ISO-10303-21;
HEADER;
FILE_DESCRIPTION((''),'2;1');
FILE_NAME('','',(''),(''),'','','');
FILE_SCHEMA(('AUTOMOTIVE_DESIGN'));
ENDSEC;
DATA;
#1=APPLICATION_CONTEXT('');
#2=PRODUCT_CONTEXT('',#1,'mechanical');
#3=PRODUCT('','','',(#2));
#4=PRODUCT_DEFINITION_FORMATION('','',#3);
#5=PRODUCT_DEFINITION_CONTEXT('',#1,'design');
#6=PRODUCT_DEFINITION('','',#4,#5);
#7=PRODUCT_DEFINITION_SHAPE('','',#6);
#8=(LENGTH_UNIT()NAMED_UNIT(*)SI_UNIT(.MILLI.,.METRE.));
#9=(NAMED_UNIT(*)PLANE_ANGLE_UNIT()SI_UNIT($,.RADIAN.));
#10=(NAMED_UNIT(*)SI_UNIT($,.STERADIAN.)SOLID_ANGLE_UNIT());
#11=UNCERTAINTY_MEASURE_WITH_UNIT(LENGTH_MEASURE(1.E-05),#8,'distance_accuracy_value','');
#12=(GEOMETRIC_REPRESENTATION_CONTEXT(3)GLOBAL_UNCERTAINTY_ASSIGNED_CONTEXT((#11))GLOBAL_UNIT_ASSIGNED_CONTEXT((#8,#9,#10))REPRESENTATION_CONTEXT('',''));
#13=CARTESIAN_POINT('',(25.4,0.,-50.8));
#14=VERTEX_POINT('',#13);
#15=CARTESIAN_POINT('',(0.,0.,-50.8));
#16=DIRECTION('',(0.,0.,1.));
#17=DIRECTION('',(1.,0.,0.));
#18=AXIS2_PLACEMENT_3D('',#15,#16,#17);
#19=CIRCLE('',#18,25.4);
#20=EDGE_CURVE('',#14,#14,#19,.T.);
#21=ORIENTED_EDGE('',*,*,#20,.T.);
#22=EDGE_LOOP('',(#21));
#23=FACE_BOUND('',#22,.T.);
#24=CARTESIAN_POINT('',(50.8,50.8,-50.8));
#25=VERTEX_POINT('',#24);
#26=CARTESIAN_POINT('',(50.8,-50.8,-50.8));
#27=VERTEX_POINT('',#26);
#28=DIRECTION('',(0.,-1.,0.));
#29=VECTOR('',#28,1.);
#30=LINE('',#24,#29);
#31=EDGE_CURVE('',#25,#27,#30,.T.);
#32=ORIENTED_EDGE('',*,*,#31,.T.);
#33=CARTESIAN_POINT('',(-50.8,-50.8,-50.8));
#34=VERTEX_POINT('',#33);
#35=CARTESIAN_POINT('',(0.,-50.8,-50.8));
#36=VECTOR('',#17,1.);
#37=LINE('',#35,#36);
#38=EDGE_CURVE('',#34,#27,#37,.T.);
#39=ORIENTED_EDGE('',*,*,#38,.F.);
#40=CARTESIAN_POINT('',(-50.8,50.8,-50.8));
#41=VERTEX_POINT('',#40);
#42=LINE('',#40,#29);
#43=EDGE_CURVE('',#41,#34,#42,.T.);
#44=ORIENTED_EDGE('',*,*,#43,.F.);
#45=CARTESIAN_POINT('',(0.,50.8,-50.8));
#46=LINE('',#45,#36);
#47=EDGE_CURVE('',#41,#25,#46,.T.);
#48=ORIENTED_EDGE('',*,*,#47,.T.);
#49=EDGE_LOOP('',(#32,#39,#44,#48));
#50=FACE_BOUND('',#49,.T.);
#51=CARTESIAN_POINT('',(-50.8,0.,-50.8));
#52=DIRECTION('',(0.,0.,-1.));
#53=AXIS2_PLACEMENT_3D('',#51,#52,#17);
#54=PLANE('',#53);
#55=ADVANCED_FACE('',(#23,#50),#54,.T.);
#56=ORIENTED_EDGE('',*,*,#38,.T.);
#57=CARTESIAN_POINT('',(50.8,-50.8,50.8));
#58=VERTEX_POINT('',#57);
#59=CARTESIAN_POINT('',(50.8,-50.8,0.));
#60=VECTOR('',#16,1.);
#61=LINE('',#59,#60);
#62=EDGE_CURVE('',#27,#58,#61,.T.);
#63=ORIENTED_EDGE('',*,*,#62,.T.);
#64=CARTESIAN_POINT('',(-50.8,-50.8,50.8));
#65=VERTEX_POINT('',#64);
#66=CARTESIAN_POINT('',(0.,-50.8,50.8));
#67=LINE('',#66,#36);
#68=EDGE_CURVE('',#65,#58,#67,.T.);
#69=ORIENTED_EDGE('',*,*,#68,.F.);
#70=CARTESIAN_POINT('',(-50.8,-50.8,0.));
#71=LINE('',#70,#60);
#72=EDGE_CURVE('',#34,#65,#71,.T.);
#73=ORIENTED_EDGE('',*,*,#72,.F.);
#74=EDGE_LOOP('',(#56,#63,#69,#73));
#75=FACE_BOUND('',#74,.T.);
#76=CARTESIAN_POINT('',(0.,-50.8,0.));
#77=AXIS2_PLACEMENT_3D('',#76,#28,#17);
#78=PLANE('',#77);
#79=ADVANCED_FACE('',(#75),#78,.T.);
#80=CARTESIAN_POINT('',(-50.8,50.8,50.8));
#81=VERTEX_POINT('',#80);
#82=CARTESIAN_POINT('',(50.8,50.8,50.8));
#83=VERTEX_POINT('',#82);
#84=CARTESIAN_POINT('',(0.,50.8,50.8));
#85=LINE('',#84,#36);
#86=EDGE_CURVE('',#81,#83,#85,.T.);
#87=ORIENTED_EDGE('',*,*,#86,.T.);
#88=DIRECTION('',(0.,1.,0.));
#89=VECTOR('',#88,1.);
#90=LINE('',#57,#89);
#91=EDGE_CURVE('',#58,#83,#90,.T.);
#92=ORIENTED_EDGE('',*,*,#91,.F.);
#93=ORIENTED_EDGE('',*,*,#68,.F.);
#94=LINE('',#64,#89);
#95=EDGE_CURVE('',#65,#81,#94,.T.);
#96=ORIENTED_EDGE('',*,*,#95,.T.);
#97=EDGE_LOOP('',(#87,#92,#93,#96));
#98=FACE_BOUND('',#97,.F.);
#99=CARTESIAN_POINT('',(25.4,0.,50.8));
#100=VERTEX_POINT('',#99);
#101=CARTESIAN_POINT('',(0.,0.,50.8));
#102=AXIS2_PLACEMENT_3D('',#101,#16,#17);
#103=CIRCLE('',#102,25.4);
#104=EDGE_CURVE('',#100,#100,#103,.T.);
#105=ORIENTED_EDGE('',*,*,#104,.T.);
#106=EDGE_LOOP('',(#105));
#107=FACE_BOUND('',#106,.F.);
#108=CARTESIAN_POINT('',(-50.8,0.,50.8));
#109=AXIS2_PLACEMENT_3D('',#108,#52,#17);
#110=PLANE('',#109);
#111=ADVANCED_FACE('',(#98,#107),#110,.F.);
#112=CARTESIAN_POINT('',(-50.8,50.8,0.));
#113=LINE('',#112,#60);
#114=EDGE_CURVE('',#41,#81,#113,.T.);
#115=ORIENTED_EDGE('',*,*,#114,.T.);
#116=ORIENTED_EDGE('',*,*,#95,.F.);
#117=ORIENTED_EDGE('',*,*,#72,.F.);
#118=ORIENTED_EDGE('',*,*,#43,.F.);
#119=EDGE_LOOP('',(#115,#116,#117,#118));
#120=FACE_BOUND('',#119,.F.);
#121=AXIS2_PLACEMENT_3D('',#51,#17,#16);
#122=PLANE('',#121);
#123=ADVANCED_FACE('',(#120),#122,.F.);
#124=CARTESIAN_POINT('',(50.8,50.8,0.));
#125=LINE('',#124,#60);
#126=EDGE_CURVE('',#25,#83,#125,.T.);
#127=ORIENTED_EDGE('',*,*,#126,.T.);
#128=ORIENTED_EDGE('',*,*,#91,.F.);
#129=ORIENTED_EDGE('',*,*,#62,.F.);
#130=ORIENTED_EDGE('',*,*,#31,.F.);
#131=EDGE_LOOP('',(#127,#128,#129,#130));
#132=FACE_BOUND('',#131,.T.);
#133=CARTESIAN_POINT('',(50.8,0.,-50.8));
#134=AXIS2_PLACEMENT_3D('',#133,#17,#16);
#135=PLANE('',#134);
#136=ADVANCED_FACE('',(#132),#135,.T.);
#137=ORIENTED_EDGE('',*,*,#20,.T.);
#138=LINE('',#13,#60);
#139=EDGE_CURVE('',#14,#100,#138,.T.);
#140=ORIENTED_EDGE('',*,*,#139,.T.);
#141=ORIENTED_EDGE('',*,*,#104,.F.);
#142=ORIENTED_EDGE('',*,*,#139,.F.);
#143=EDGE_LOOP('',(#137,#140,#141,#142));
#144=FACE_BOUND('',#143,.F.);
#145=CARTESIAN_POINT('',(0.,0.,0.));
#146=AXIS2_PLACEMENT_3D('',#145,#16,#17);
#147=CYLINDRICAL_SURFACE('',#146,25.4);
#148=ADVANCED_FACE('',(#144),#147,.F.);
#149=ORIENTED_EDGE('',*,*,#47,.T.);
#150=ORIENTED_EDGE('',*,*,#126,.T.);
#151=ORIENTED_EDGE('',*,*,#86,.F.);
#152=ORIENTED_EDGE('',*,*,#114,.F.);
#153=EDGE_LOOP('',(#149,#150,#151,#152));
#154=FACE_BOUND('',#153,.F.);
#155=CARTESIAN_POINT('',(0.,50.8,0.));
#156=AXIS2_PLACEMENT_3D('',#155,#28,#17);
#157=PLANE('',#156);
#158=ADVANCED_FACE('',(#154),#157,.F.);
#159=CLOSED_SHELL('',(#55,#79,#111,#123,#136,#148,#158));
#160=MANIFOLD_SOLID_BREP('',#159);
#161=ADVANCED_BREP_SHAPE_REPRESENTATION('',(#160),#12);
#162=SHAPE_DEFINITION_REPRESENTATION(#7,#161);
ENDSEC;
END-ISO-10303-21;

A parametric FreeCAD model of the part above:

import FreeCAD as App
import Part
import Sketcher
from FreeCAD import Vector
Q = App.Units.Quantity

doc = App.newDocument("Part")
body = doc.addObject("PartDesign::Body", "Body")

sketch1 = body.newObject("Sketcher::SketchObject", "Sketch")
sketch1.AttachmentSupport = (doc.getObject("XZ_Plane"), [""])
sketch1.MapMode = "FlatFace"
sketch1.addGeometry([
    Part.LineSegment(Vector(-51, 51, 0), Vector(-51, -51, 0)),
    Part.LineSegment(Vector(-51, -51, 0), Vector(51, -51, 0)),
    Part.LineSegment(Vector(51, -51, 0), Vector(51, 51, 0)),
    Part.LineSegment(Vector(51, 51, 0), Vector(-51, 51, 0)),
], False)
sketch1.addConstraint([
    Sketcher.Constraint("Coincident", 0, 2, 1, 1),
    Sketcher.Constraint("Coincident", 1, 2, 2, 1),
    Sketcher.Constraint("Coincident", 2, 2, 3, 1),
    Sketcher.Constraint("Coincident", 3, 2, 0, 1),
    Sketcher.Constraint("Vertical", 0),
    Sketcher.Constraint("Horizontal", 1),
    Sketcher.Constraint("Vertical", 2),
    Sketcher.Constraint("Horizontal", 3),
    Sketcher.Constraint("Symmetric", 0, 2, 2, 2, -1, 1),
    Sketcher.Constraint("Equal", 3, 0),
    Sketcher.Constraint("DistanceX", 1, 1, 1, 2, Q("4 in")),
])
pad1 = body.newObject("PartDesign::Pad", "Pad")
pad1.Profile = sketch1
pad1.Length = Q("4 in")
pad1.Midplane = True

sketch2 = body.newObject("Sketcher::SketchObject", "Sketch001")
sketch2.AttachmentSupport = (doc.getObject("XY_Plane"), [""])
sketch2.MapMode = "FlatFace"
sketch2.addGeometry(Part.Circle(Vector(0, 0, 0), Vector(0, 0, 1), 25), False)
sketch2.addConstraint([
    Sketcher.Constraint("Coincident", 0, 3, -1, 1),
    Sketcher.Constraint("Diameter", 0, Q("2 in")),
])
pocket1 = body.newObject("PartDesign::Pocket", "Pocket")
pocket1.Profile = sketch2
pocket1.Length = Q("4 in")
pocket1.Midplane = True

doc.recompute()
